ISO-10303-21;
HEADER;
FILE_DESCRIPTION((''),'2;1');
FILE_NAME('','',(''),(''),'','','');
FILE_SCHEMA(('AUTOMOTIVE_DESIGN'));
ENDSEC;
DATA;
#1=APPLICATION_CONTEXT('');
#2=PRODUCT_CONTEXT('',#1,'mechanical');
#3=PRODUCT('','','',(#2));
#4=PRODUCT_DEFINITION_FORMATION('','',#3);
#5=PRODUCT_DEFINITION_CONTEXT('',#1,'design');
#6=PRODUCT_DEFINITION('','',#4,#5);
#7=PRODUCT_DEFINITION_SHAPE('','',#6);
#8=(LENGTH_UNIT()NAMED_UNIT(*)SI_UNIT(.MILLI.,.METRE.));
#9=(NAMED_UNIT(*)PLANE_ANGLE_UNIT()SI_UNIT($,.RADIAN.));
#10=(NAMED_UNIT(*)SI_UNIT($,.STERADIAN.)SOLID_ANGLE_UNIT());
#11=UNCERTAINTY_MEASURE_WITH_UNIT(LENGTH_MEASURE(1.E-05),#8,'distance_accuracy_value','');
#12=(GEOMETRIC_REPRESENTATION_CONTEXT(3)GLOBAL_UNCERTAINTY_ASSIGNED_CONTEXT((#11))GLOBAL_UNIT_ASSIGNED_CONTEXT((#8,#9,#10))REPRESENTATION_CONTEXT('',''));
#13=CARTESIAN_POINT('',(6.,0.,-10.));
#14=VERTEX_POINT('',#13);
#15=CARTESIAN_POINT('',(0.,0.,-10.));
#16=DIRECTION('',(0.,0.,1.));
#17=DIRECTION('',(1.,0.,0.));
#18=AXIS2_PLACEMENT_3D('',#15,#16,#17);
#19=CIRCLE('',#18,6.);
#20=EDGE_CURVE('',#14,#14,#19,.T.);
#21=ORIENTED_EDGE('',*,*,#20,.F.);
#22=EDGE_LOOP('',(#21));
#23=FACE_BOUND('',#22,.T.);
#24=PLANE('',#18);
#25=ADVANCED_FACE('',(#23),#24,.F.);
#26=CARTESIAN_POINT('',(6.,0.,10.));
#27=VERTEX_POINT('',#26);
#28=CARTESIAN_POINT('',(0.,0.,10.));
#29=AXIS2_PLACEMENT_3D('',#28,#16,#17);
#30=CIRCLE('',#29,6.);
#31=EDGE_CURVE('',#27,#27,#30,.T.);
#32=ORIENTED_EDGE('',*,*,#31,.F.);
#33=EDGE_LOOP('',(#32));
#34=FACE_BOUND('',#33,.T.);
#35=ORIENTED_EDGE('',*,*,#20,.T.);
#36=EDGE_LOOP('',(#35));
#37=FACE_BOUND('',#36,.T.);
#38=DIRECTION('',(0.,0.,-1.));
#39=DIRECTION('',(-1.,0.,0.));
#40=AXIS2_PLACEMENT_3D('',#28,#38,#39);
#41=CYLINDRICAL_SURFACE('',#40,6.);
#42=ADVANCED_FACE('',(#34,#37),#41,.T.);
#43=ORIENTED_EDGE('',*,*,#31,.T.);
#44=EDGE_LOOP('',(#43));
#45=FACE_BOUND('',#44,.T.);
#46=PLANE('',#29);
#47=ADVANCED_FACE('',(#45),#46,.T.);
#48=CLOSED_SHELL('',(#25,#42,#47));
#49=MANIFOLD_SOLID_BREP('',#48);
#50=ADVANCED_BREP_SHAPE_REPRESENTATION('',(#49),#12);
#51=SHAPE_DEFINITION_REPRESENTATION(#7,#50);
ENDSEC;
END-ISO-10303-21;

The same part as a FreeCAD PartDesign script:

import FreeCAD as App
import Part
import Sketcher

doc = App.newDocument("Part")
body = doc.addObject("PartDesign::Body", "Body")

# Sketch on XY plane
sketch1 = body.newObject("Sketcher::SketchObject", "Sketch")
sketch1.AttachmentSupport = (doc.getObject("XY_Plane"), [""])
sketch1.MapMode = "FlatFace"
sketch1.addGeometry(Part.Circle(App.Vector(0, 0, 0), App.Vector(0, 0, 1), 6), False)
sketch1.addConstraint([
    Sketcher.Constraint("Coincident", 0, 3, -1, 1),
    Sketcher.Constraint("Diameter", 0, 12.0),
])
pad1 = body.newObject("PartDesign::Pad", "Pad")
pad1.Profile = sketch1
pad1.Length = 20
pad1.Midplane = True

doc.recompute()
